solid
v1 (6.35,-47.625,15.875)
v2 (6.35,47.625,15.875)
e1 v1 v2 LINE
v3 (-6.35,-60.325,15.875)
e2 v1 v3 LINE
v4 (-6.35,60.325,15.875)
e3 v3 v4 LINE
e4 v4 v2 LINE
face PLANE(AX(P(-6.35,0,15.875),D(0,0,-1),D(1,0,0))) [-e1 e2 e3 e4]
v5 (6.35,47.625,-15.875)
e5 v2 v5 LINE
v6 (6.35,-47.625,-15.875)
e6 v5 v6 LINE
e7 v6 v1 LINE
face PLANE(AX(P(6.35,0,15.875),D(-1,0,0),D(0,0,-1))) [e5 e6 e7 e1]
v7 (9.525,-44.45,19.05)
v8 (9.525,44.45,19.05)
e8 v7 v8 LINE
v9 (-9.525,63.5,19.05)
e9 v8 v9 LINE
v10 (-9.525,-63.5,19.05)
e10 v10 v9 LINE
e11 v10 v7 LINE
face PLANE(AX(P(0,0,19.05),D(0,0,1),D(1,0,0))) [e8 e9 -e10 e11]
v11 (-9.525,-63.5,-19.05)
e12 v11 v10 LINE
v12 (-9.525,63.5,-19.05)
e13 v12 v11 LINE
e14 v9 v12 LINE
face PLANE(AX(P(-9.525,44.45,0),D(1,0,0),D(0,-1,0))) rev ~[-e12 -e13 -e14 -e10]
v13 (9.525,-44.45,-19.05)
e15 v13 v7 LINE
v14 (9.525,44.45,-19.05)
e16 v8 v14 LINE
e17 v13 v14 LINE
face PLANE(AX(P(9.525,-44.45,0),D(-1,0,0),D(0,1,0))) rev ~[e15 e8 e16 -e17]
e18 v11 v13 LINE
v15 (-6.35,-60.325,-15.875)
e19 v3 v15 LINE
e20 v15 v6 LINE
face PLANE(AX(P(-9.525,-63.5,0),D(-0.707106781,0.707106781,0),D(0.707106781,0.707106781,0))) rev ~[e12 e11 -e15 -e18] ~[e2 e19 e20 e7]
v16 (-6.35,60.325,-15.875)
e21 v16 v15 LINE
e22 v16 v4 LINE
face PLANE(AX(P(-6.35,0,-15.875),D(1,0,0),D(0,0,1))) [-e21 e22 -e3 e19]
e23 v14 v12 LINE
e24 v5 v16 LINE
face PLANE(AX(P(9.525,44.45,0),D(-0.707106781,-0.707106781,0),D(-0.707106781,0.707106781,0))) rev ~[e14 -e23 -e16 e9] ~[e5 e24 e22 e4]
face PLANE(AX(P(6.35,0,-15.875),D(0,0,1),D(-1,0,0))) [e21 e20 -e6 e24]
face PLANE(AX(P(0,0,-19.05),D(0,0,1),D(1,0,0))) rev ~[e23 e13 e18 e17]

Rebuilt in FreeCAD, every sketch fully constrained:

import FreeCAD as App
import Part
import Sketcher
Q = App.Units.Quantity


def add_polygon(sketch, points):
    """Adds a closed chain of lines whose ends are joined by coincident constraints."""
    first, n = sketch.GeometryCount, len(points)
    for a, b in zip(points, points[1:] + points[:1]):
        sketch.addGeometry(Part.LineSegment(App.Vector(*a, 0), App.Vector(*b, 0)), False)
    for i in range(n):
        sketch.addConstraint(Sketcher.Constraint("Coincident", first + i, 2, first + (i + 1) % n, 1))

doc = App.newDocument("Part")
params = doc.addObject("Spreadsheet::Sheet", "Params")
for row, (alias, value) in enumerate([
    ("sketch1_height", "5 in"),
    ("pad1_length", "1.5 in"),
    ("sketch2_width", "0.5 in"),
    ("sketch2_height", "1.25 in"),
], start=1):
    params.set(f"A{row}", alias)
    params.set(f"B{row}", "=" + value)
    params.setAlias(f"B{row}", alias)

body = doc.addObject("PartDesign::Body", "Body")

# Sketch on XY plane
sketch1 = doc.addObject("Sketcher::SketchObject", "Sketch")
body.addObject(sketch1)
sketch1.AttachmentSupport = (doc.XY_Plane, [""])
sketch1.MapMode = "FlatFace"
add_polygon(sketch1, [(-9.525, -63.5), (9.525, -44.45), (9.525, 44.45), (-9.525, 63.5)])  # lines 0-3
sketch1.addConstraint([
    Sketcher.Constraint("Vertical", 1),
    Sketcher.Constraint("Vertical", 3),
    Sketcher.Constraint("Perpendicular", 0, 2),
    Sketcher.Constraint("Equal", 0, 2),
    Sketcher.Constraint("DistanceY", 3, 2, 3, 1, Q("5 in")),
    Sketcher.Constraint("DistanceX", 2, 2, 1, 2, Q("0.75 in")),
    Sketcher.Constraint("DistanceY", -1, 1, 2, 2, Q("2.5 in")),
    Sketcher.Constraint("DistanceX", -1, 1, 0, 2, Q("0.375 in")),
])
sketch1.setExpression("Constraints[8]", "Params.sketch1_height")
pad1 = doc.addObject("PartDesign::Pad", "Pad")
body.addObject(pad1)
pad1.Profile = sketch1
pad1.setExpression("Length", "Params.pad1_length")
pad1.Midplane = True

# Sketch on XZ plane
sketch2 = doc.addObject("Sketcher::SketchObject", "Sketch001")
body.addObject(sketch2)
sketch2.AttachmentSupport = (doc.XZ_Plane, [""])
sketch2.MapMode = "FlatFace"
add_polygon(sketch2, [(-6.35, -15.875), (-6.35, 15.875), (6.35, 15.875), (6.35, -15.875)])  # lines 0-3
sketch2.addConstraint([
    Sketcher.Constraint("Vertical", 0),
    Sketcher.Constraint("Horizontal", 1),
    Sketcher.Constraint("Vertical", 2),
    Sketcher.Constraint("Horizontal", 3),
    Sketcher.Constraint("Symmetric", 0, 2, 2, 2, -1, 1),
    Sketcher.Constraint("DistanceX", 1, 1, 1, 2, Q("0.5 in")),
    Sketcher.Constraint("DistanceY", 0, 1, 0, 2, Q("1.25 in")),
])
sketch2.setExpression("Constraints[9]", "Params.sketch2_width")
sketch2.setExpression("Constraints[10]", "Params.sketch2_height")
pocket1 = doc.addObject("PartDesign::Pocket", "Pocket")
body.addObject(pocket1)
pocket1.Profile = sketch2
pocket1.Type = "ThroughAll"
pocket1.Midplane = True

doc.recompute()
